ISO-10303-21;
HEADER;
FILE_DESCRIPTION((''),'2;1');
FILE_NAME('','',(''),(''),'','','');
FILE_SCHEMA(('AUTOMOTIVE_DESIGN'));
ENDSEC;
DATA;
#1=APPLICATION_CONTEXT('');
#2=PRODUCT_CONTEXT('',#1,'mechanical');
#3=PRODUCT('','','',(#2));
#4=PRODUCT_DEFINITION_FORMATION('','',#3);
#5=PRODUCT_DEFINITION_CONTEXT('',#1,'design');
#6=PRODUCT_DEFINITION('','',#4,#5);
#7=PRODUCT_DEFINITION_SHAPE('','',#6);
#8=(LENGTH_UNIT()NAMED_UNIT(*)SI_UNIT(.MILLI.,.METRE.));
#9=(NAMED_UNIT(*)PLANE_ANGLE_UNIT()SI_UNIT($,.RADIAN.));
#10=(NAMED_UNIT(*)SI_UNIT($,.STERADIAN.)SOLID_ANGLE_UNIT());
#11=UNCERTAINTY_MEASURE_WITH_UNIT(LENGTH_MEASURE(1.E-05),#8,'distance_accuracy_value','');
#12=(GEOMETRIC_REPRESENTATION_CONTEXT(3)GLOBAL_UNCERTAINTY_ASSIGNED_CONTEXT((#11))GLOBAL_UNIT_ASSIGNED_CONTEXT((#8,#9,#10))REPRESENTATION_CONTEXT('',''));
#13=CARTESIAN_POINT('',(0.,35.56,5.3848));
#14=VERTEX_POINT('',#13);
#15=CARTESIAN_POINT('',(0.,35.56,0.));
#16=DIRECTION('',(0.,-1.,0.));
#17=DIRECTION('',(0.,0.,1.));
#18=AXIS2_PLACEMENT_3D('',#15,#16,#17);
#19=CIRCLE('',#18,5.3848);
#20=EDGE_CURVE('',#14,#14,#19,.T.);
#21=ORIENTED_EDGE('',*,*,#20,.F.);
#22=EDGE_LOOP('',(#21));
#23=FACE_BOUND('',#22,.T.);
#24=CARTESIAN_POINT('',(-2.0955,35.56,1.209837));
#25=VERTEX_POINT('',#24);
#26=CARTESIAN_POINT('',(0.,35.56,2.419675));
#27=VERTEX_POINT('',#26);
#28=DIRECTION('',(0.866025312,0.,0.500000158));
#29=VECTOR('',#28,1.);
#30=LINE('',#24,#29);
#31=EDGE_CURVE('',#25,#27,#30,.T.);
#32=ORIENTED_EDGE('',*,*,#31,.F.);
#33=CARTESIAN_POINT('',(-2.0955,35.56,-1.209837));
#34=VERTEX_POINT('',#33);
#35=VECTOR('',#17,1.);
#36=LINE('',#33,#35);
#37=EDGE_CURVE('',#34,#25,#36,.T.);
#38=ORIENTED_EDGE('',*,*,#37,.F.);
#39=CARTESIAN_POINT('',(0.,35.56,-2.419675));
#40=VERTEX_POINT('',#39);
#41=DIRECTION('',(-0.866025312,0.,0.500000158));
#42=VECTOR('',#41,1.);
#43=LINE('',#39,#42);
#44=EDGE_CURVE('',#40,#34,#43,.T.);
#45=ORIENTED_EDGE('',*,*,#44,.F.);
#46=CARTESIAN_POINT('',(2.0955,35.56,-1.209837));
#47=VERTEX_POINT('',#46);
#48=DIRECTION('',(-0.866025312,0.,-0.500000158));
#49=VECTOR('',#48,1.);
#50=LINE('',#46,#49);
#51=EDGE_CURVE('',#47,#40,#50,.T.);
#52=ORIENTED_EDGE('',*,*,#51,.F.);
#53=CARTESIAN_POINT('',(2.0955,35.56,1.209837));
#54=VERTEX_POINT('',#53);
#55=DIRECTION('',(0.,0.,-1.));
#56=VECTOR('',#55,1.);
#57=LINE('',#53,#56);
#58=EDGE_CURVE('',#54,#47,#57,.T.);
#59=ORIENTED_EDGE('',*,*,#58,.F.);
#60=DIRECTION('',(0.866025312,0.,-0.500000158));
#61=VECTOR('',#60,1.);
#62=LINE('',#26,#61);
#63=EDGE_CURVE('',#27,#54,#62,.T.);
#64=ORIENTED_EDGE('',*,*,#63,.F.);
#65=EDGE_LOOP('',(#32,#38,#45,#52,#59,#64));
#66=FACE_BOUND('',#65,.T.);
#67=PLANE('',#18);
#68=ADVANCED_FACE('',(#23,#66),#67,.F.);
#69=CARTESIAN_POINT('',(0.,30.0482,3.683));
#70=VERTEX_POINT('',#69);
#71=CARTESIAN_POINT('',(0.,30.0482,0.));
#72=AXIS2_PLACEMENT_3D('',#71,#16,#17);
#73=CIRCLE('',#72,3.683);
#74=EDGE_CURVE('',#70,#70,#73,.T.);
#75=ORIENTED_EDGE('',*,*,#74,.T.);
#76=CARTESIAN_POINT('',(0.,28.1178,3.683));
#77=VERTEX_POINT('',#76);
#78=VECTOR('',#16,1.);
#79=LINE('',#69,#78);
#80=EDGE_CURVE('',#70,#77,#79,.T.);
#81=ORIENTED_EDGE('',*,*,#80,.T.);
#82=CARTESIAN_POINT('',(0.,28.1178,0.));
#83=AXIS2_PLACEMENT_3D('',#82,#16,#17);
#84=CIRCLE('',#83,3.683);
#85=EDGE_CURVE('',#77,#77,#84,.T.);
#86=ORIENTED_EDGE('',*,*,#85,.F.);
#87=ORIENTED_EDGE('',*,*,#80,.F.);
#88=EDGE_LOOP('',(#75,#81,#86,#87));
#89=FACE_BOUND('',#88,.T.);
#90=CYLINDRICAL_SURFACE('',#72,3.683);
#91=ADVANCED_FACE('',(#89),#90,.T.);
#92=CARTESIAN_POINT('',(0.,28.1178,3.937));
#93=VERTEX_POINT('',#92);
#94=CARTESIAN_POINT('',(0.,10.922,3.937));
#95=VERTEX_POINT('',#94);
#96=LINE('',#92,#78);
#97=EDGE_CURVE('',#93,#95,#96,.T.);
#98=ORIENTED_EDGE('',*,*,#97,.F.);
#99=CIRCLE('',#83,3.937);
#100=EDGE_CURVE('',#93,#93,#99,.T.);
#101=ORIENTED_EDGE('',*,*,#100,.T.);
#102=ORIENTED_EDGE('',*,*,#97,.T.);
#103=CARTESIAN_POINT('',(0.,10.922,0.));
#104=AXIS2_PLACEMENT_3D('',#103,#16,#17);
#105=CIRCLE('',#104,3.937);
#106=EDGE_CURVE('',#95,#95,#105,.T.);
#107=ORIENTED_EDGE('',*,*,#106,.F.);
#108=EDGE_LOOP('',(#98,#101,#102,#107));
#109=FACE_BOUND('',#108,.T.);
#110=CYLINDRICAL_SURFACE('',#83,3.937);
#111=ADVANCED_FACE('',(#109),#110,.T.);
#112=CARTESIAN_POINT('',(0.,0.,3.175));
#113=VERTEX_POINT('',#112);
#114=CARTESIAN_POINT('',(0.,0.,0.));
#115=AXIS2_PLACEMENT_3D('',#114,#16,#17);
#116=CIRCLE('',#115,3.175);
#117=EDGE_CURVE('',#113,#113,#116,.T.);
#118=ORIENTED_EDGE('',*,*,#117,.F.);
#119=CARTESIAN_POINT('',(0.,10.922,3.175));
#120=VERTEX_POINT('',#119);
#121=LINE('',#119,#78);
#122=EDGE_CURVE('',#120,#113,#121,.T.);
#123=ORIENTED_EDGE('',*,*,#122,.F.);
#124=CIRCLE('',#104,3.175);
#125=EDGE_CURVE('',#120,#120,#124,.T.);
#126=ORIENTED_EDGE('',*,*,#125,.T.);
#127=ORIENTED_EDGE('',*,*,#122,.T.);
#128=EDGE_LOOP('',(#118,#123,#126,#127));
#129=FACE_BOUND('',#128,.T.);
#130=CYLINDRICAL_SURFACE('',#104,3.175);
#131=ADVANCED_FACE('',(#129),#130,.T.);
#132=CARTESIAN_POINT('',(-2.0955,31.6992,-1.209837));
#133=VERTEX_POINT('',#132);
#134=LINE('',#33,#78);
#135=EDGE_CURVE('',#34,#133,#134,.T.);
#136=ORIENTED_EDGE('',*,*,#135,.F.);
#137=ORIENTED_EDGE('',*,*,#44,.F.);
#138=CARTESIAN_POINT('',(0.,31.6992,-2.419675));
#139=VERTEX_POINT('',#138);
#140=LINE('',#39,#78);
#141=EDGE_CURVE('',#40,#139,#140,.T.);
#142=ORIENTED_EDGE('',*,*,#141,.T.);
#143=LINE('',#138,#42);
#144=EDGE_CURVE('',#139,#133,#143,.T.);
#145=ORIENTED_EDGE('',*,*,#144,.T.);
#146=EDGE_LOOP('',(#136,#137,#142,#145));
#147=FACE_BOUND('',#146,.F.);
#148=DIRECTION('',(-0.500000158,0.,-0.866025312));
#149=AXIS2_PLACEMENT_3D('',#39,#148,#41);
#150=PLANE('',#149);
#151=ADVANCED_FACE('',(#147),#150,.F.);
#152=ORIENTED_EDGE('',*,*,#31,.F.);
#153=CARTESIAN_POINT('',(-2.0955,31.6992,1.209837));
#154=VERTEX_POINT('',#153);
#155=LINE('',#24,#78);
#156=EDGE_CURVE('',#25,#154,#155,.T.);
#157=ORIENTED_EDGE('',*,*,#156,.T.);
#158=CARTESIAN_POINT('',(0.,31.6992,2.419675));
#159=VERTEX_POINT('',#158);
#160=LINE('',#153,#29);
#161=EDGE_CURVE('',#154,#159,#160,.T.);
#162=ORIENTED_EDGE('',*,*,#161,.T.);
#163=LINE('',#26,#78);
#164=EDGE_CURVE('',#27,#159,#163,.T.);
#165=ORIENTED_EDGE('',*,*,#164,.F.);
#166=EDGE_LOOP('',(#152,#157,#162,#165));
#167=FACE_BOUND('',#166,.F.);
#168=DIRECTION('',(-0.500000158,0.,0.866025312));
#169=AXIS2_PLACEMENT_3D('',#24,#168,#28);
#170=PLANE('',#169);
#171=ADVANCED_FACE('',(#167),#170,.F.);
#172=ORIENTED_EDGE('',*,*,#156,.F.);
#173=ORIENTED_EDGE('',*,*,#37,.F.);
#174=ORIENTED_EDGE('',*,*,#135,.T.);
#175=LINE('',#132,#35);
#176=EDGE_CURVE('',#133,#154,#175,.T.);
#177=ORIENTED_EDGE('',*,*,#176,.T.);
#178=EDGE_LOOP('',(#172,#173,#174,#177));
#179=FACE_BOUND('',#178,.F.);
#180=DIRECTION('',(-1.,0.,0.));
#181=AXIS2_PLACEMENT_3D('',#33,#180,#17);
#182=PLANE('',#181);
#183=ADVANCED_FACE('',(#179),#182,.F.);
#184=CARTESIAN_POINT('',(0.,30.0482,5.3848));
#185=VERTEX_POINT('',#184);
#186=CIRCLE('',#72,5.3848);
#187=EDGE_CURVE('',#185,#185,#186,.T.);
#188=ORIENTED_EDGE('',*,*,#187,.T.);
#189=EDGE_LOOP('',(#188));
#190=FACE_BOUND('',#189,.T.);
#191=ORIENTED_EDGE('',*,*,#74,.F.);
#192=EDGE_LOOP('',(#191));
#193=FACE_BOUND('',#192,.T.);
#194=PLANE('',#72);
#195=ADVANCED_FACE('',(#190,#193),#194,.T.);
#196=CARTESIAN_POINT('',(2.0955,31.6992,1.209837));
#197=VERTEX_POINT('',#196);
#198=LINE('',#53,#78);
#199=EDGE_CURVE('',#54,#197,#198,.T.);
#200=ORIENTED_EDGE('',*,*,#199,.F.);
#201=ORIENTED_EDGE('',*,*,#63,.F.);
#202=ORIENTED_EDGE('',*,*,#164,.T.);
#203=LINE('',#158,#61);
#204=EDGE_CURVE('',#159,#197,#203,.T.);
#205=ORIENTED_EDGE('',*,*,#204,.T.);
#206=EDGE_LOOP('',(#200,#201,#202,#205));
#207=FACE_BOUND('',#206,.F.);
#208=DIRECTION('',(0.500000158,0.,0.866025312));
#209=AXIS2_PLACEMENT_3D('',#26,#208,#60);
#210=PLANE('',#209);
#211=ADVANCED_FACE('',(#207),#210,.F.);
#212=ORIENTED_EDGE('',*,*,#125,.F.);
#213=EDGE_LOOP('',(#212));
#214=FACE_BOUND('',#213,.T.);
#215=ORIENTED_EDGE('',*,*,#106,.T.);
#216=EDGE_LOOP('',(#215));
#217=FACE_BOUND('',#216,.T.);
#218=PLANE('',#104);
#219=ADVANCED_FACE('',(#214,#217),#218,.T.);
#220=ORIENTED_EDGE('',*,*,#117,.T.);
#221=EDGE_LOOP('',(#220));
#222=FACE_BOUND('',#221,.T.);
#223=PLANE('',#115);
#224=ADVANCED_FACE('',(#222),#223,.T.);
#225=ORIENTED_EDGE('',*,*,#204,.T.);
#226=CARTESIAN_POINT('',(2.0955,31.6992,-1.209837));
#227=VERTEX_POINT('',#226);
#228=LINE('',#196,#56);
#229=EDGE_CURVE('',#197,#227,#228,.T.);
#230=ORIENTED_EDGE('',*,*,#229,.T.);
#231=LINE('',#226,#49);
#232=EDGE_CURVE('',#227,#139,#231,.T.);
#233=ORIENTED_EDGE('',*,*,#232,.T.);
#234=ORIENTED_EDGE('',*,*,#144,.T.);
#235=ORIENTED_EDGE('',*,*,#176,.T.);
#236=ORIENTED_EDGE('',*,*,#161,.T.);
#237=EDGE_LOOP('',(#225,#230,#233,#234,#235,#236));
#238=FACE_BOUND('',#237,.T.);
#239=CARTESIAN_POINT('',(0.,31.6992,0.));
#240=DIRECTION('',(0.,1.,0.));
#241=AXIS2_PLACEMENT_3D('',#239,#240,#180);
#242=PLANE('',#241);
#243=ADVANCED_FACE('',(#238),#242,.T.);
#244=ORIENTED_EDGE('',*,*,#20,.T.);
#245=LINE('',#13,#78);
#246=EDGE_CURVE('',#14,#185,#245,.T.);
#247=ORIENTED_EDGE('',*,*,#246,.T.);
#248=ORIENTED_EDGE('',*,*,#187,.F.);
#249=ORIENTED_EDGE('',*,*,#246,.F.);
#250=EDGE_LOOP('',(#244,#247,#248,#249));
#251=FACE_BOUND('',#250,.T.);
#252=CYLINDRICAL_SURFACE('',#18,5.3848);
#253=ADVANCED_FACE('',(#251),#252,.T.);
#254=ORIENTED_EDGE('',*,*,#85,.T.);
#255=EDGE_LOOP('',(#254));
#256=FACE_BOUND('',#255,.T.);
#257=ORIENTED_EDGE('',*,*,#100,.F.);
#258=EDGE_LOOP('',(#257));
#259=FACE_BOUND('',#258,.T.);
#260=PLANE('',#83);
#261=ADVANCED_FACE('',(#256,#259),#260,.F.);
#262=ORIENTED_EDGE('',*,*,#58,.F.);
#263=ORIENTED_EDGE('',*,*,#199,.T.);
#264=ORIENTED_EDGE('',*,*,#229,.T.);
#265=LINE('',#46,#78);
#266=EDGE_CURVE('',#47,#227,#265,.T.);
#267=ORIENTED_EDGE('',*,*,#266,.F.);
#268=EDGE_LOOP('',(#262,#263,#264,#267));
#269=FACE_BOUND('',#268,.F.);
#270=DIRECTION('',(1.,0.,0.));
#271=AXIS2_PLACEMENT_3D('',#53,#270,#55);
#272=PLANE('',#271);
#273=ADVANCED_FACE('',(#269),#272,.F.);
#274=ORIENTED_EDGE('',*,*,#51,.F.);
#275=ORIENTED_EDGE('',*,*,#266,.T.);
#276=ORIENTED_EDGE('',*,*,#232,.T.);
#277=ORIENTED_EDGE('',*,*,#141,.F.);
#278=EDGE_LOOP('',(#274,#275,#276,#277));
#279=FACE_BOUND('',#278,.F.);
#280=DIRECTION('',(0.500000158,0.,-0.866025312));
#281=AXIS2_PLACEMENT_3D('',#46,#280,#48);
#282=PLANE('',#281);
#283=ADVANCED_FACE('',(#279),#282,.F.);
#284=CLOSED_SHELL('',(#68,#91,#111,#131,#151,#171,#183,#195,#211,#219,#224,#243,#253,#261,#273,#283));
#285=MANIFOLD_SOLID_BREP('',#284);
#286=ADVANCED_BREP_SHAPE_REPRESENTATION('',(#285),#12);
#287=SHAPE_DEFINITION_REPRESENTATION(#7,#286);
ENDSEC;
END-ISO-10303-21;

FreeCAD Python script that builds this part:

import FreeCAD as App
import Part
import Sketcher
from FreeCAD import Vector
Q = App.Units.Quantity


def add_polygon(sketch, points):
    """Adds a closed chain of lines whose ends are joined by coincident constraints."""
    first, n = sketch.GeometryCount, len(points)
    for a, b in zip(points, points[1:] + points[:1]):
        sketch.addGeometry(Part.LineSegment(App.Vector(*a, 0), App.Vector(*b, 0)), False)
    for i in range(n):
        sketch.addConstraint(Sketcher.Constraint("Coincident", first + i, 2, first + (i + 1) % n, 1))

doc = App.newDocument("Part")
body = doc.addObject("PartDesign::Body", "Body")

# Sketch on YZ plane
sketch1 = body.newObject("Sketcher::SketchObject", "Sketch")
sketch1.AttachmentSupport = (doc.getObject("YZ_Plane"), [""])
sketch1.MapMode = "FlatFace"
add_polygon(sketch1, [(0, 3.175), (0, 0), (35.56, 0), (35.56, 5.3848), (30.0482, 5.3848), (30.0482, 3.683), (28.1178, 3.683), (28.1178, 3.937), (10.922, 3.937), (10.922, 3.175)])  # lines 0-9
sketch1.addConstraint(Sketcher.Constraint("Vertical", 0))
sketch1.addConstraint(Sketcher.Constraint("Horizontal", 1))
sketch1.addConstraint(Sketcher.Constraint("Vertical", 2))
sketch1.addConstraint(Sketcher.Constraint("Horizontal", 3))
sketch1.addConstraint(Sketcher.Constraint("Vertical", 4))
sketch1.addConstraint(Sketcher.Constraint("Horizontal", 5))
sketch1.addConstraint(Sketcher.Constraint("Vertical", 6))
sketch1.addConstraint(Sketcher.Constraint("Horizontal", 7))
sketch1.addConstraint(Sketcher.Constraint("Vertical", 8))
sketch1.addConstraint(Sketcher.Constraint("Horizontal", 9))
sketch1.addConstraint(Sketcher.Constraint("Coincident", 0, 2, -1, 1))
sketch1.addConstraint(Sketcher.Constraint("DistanceX", 1, 1, 1, 2, Q("1.4 in")))
sketch1.addConstraint(Sketcher.Constraint("DistanceX", 9, 2, 9, 1, Q("0.43 in")))
sketch1.addConstraint(Sketcher.Constraint("DistanceY", 6, 1, 6, 2, Q("0.01 in")))
sketch1.addConstraint(Sketcher.Constraint("DistanceY", 8, 2, 8, 1, Q("0.03 in")))
sketch1.addConstraint(Sketcher.Constraint("DistanceX", 3, 2, 3, 1, Q("0.217 in")))
sketch1.addConstraint(Sketcher.Constraint("DistanceX", 5, 2, 5, 1, Q("0.076 in")))
sketch1.addConstraint(Sketcher.Constraint("DistanceY", 0, 2, 0, 1, Q("0.125 in")))
sketch1.addConstraint(Sketcher.Constraint("DistanceY", 2, 1, 2, 2, Q("0.212 in")))
revolution = body.newObject("PartDesign::Revolution", "Revolution")
revolution.Profile = sketch1
revolution.ReferenceAxis = (sketch1, ["H_Axis"])
revolution.Angle = 360

# Sketch on XZ plane
sketch2 = body.newObject("Sketcher::SketchObject", "Sketch001")
sketch2.AttachmentSupport = (doc.getObject("XZ_Plane"), [""])
sketch2.MapMode = "FlatFace"
sketch2.AttachmentOffset = App.Placement(Vector(0, 0, -1.4 * 25.4), App.Rotation())
add_polygon(sketch2, [(-2.0955, 1.209837), (0, 2.419675), (2.0955, 1.209837), (2.0955, -1.209837), (0, -2.419675), (-2.0955, -1.209837)])  # lines 0-5
sketch2.addConstraint(Sketcher.Constraint("Vertical", 2))
sketch2.addConstraint(Sketcher.Constraint("Vertical", 5))
sketch2.addConstraint(Sketcher.Constraint("Symmetric", 0, 2, 3, 2, -1, 1))
sketch2.addConstraint(Sketcher.Constraint("Symmetric", 1, 2, 4, 2, -1, 1))
sketch2.addConstraint(Sketcher.Constraint("PointOnObject", 0, 2, -2))
sketch2.addConstraint(Sketcher.Constraint("Parallel", 0, 3))
sketch2.addConstraint(Sketcher.Constraint("Horizontal", 2, 2, 4, 2))
sketch2.addConstraint(Sketcher.Constraint("Angle", 0, Q("30.00001 deg")))
sketch2.addConstraint(Sketcher.Constraint("DistanceX", 4, 2, 2, 2, Q("0.165 in")))
sketch2.addConstraint(Sketcher.Constraint("DistanceY", 2, 2, 2, 1, 2.419674))
pocket1 = body.newObject("PartDesign::Pocket", "Pocket")
pocket1.Profile = sketch2
pocket1.Length = Q("0.152 in")
pocket1.Reversed = True

doc.recompute()
